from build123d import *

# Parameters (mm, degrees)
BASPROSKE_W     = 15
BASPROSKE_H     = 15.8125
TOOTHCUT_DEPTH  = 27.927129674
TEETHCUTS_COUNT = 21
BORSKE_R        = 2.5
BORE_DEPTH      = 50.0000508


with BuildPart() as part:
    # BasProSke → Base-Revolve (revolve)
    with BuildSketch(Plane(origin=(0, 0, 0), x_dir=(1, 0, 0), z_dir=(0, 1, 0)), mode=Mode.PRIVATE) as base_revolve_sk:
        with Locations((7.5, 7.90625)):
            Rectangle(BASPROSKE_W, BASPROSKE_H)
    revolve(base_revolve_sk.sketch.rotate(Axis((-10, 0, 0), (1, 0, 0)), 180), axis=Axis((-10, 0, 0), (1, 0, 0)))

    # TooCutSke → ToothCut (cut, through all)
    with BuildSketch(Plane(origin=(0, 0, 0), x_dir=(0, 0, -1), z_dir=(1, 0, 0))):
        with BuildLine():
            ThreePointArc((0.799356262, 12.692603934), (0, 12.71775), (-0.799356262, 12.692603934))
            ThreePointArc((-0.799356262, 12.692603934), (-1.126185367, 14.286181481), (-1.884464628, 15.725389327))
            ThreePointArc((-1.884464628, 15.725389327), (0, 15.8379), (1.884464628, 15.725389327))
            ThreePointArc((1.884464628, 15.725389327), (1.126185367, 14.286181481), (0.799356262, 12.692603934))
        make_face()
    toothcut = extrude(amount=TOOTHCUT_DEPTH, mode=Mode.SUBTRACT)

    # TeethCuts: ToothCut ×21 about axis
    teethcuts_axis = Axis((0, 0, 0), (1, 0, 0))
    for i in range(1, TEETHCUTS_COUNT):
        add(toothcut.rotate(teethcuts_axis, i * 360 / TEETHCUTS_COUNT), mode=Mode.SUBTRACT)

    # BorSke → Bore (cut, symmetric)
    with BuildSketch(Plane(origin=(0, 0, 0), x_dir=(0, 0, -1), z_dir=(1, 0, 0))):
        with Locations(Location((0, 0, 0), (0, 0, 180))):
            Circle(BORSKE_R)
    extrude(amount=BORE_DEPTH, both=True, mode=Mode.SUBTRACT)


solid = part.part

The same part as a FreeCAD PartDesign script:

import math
import FreeCAD as App
import Part
import Sketcher

V = App.Vector
Q = App.Units.Quantity


def add_polygon(sketch, points):
    """Adds a closed chain of lines whose ends are joined by coincident constraints."""
    first, n = sketch.GeometryCount, len(points)
    for a, b in zip(points, points[1:] + points[:1]):
        sketch.addGeometry(Part.LineSegment(App.Vector(*a, 0), App.Vector(*b, 0)), False)
    for i in range(n):
        sketch.addConstraint(Sketcher.Constraint("Coincident", first + i, 2, first + (i + 1) % n, 1))

doc = App.newDocument("Part")
body = doc.addObject("PartDesign::Body", "Body")

# Sketch on XZ plane
sketch1 = body.newObject("Sketcher::SketchObject", "Sketch")
sketch1.AttachmentSupport = (doc.getObject("XZ_Plane"), [""])
sketch1.MapMode = "FlatFace"
add_polygon(sketch1, [(0, -15.8125), (0, 0), (15, 0), (15, -15.8125)])  # lines 0-3
sketch1.addConstraint([
    Sketcher.Constraint("Vertical", 0),
    Sketcher.Constraint("Horizontal", 1),
    Sketcher.Constraint("Vertical", 2),
    Sketcher.Constraint("Horizontal", 3),
    Sketcher.Constraint("Coincident", 0, 2, -1, 1),
    Sketcher.Constraint("DistanceX", 1, 1, 1, 2, Q("15 mm")),
    Sketcher.Constraint("DistanceY", 0, 1, 0, 2, Q("15.8125 mm")),
])
revolution = body.newObject("PartDesign::Revolution", "Revolution")
revolution.Profile = sketch1
revolution.ReferenceAxis = (sketch1, ["H_Axis"])
revolution.Angle = 360

# Sketch on YZ plane
sketch2 = body.newObject("Sketcher::SketchObject", "Sketch001")
sketch2.AttachmentSupport = (doc.getObject("YZ_Plane"), [""])
sketch2.MapMode = "FlatFace"
sketch2.addGeometry([
    Part.ArcOfCircle(Part.Circle(V(0, 0, 0), V(0, 0, 1), 12.71775), math.radians(-3.603621), math.radians(3.603621)),
    Part.ArcOfCircle(Part.Circle(V(12.340706, -6.563625, 0), V(0, 0, 1), 5.775), math.radians(54.119797), math.radians(86.506529)),
    Part.ArcOfCircle(Part.Circle(V(0, 0, 0), V(0, 0, 1), 15.8379), math.radians(-6.833499), math.radians(6.833499)),
    Part.ArcOfCircle(Part.Circle(V(12.340706, 6.563625, 0), V(0, 0, 1), 5.775), math.radians(-86.506529), math.radians(-54.119797)),
], False)
sketch2.addConstraint([
    Sketcher.Constraint("Coincident", 0, 1, 1, 2),
    Sketcher.Constraint("Coincident", 1, 1, 2, 1),
    Sketcher.Constraint("Coincident", 2, 2, 3, 2),
    Sketcher.Constraint("Coincident", 3, 1, 0, 2),
    Sketcher.Constraint("Coincident", 0, 3, -1, 1),
    Sketcher.Constraint("Coincident", 2, 3, -1, 1),
    Sketcher.Constraint("Equal", 1, 3),
    Sketcher.Constraint("Symmetric", 1, 3, 3, 3, -1),
    Sketcher.Constraint("Radius", 1, Q("5.775 mm")),
    Sketcher.Constraint("Radius", 2, Q("15.8379 mm")),
    Sketcher.Constraint("Radius", 0, Q("12.71775 mm")),
    Sketcher.Constraint("DistanceX", 1, 3, 0, 1, Q("0.351898 mm")),
    Sketcher.Constraint("DistanceX", -1, 1, 1, 1, Q("15.725389 mm")),
])
pocket1 = body.newObject("PartDesign::Pocket", "Pocket")
pocket1.Profile = sketch2
pocket1.Type = "ThroughAll"
pocket1.Reversed = True
doc.recompute()

polarpattern = body.newObject("PartDesign::PolarPattern", "PolarPattern")
polarpattern.Originals = [pocket1]
polarpattern.Axis = (doc.getObject("X_Axis"), [""])
polarpattern.Angle = 360
polarpattern.Occurrences = 21
body.Tip = polarpattern

# Sketch on YZ plane
sketch3 = body.newObject("Sketcher::SketchObject", "Sketch002")
sketch3.AttachmentSupport = (doc.getObject("YZ_Plane"), [""])
sketch3.MapMode = "FlatFace"
sketch3.addGeometry(Part.Circle(V(0, 0, 0), V(0, 0, 1), 2.5), False)
sketch3.addConstraint([
    Sketcher.Constraint("Coincident", 0, 3, -1, 1),
    Sketcher.Constraint("Diameter", 0, Q("5 mm")),
])
pocket2 = body.newObject("PartDesign::Pocket", "Pocket001")
pocket2.Profile = sketch3
pocket2.Length = 100.000102
pocket2.Midplane = True

doc.recompute()
